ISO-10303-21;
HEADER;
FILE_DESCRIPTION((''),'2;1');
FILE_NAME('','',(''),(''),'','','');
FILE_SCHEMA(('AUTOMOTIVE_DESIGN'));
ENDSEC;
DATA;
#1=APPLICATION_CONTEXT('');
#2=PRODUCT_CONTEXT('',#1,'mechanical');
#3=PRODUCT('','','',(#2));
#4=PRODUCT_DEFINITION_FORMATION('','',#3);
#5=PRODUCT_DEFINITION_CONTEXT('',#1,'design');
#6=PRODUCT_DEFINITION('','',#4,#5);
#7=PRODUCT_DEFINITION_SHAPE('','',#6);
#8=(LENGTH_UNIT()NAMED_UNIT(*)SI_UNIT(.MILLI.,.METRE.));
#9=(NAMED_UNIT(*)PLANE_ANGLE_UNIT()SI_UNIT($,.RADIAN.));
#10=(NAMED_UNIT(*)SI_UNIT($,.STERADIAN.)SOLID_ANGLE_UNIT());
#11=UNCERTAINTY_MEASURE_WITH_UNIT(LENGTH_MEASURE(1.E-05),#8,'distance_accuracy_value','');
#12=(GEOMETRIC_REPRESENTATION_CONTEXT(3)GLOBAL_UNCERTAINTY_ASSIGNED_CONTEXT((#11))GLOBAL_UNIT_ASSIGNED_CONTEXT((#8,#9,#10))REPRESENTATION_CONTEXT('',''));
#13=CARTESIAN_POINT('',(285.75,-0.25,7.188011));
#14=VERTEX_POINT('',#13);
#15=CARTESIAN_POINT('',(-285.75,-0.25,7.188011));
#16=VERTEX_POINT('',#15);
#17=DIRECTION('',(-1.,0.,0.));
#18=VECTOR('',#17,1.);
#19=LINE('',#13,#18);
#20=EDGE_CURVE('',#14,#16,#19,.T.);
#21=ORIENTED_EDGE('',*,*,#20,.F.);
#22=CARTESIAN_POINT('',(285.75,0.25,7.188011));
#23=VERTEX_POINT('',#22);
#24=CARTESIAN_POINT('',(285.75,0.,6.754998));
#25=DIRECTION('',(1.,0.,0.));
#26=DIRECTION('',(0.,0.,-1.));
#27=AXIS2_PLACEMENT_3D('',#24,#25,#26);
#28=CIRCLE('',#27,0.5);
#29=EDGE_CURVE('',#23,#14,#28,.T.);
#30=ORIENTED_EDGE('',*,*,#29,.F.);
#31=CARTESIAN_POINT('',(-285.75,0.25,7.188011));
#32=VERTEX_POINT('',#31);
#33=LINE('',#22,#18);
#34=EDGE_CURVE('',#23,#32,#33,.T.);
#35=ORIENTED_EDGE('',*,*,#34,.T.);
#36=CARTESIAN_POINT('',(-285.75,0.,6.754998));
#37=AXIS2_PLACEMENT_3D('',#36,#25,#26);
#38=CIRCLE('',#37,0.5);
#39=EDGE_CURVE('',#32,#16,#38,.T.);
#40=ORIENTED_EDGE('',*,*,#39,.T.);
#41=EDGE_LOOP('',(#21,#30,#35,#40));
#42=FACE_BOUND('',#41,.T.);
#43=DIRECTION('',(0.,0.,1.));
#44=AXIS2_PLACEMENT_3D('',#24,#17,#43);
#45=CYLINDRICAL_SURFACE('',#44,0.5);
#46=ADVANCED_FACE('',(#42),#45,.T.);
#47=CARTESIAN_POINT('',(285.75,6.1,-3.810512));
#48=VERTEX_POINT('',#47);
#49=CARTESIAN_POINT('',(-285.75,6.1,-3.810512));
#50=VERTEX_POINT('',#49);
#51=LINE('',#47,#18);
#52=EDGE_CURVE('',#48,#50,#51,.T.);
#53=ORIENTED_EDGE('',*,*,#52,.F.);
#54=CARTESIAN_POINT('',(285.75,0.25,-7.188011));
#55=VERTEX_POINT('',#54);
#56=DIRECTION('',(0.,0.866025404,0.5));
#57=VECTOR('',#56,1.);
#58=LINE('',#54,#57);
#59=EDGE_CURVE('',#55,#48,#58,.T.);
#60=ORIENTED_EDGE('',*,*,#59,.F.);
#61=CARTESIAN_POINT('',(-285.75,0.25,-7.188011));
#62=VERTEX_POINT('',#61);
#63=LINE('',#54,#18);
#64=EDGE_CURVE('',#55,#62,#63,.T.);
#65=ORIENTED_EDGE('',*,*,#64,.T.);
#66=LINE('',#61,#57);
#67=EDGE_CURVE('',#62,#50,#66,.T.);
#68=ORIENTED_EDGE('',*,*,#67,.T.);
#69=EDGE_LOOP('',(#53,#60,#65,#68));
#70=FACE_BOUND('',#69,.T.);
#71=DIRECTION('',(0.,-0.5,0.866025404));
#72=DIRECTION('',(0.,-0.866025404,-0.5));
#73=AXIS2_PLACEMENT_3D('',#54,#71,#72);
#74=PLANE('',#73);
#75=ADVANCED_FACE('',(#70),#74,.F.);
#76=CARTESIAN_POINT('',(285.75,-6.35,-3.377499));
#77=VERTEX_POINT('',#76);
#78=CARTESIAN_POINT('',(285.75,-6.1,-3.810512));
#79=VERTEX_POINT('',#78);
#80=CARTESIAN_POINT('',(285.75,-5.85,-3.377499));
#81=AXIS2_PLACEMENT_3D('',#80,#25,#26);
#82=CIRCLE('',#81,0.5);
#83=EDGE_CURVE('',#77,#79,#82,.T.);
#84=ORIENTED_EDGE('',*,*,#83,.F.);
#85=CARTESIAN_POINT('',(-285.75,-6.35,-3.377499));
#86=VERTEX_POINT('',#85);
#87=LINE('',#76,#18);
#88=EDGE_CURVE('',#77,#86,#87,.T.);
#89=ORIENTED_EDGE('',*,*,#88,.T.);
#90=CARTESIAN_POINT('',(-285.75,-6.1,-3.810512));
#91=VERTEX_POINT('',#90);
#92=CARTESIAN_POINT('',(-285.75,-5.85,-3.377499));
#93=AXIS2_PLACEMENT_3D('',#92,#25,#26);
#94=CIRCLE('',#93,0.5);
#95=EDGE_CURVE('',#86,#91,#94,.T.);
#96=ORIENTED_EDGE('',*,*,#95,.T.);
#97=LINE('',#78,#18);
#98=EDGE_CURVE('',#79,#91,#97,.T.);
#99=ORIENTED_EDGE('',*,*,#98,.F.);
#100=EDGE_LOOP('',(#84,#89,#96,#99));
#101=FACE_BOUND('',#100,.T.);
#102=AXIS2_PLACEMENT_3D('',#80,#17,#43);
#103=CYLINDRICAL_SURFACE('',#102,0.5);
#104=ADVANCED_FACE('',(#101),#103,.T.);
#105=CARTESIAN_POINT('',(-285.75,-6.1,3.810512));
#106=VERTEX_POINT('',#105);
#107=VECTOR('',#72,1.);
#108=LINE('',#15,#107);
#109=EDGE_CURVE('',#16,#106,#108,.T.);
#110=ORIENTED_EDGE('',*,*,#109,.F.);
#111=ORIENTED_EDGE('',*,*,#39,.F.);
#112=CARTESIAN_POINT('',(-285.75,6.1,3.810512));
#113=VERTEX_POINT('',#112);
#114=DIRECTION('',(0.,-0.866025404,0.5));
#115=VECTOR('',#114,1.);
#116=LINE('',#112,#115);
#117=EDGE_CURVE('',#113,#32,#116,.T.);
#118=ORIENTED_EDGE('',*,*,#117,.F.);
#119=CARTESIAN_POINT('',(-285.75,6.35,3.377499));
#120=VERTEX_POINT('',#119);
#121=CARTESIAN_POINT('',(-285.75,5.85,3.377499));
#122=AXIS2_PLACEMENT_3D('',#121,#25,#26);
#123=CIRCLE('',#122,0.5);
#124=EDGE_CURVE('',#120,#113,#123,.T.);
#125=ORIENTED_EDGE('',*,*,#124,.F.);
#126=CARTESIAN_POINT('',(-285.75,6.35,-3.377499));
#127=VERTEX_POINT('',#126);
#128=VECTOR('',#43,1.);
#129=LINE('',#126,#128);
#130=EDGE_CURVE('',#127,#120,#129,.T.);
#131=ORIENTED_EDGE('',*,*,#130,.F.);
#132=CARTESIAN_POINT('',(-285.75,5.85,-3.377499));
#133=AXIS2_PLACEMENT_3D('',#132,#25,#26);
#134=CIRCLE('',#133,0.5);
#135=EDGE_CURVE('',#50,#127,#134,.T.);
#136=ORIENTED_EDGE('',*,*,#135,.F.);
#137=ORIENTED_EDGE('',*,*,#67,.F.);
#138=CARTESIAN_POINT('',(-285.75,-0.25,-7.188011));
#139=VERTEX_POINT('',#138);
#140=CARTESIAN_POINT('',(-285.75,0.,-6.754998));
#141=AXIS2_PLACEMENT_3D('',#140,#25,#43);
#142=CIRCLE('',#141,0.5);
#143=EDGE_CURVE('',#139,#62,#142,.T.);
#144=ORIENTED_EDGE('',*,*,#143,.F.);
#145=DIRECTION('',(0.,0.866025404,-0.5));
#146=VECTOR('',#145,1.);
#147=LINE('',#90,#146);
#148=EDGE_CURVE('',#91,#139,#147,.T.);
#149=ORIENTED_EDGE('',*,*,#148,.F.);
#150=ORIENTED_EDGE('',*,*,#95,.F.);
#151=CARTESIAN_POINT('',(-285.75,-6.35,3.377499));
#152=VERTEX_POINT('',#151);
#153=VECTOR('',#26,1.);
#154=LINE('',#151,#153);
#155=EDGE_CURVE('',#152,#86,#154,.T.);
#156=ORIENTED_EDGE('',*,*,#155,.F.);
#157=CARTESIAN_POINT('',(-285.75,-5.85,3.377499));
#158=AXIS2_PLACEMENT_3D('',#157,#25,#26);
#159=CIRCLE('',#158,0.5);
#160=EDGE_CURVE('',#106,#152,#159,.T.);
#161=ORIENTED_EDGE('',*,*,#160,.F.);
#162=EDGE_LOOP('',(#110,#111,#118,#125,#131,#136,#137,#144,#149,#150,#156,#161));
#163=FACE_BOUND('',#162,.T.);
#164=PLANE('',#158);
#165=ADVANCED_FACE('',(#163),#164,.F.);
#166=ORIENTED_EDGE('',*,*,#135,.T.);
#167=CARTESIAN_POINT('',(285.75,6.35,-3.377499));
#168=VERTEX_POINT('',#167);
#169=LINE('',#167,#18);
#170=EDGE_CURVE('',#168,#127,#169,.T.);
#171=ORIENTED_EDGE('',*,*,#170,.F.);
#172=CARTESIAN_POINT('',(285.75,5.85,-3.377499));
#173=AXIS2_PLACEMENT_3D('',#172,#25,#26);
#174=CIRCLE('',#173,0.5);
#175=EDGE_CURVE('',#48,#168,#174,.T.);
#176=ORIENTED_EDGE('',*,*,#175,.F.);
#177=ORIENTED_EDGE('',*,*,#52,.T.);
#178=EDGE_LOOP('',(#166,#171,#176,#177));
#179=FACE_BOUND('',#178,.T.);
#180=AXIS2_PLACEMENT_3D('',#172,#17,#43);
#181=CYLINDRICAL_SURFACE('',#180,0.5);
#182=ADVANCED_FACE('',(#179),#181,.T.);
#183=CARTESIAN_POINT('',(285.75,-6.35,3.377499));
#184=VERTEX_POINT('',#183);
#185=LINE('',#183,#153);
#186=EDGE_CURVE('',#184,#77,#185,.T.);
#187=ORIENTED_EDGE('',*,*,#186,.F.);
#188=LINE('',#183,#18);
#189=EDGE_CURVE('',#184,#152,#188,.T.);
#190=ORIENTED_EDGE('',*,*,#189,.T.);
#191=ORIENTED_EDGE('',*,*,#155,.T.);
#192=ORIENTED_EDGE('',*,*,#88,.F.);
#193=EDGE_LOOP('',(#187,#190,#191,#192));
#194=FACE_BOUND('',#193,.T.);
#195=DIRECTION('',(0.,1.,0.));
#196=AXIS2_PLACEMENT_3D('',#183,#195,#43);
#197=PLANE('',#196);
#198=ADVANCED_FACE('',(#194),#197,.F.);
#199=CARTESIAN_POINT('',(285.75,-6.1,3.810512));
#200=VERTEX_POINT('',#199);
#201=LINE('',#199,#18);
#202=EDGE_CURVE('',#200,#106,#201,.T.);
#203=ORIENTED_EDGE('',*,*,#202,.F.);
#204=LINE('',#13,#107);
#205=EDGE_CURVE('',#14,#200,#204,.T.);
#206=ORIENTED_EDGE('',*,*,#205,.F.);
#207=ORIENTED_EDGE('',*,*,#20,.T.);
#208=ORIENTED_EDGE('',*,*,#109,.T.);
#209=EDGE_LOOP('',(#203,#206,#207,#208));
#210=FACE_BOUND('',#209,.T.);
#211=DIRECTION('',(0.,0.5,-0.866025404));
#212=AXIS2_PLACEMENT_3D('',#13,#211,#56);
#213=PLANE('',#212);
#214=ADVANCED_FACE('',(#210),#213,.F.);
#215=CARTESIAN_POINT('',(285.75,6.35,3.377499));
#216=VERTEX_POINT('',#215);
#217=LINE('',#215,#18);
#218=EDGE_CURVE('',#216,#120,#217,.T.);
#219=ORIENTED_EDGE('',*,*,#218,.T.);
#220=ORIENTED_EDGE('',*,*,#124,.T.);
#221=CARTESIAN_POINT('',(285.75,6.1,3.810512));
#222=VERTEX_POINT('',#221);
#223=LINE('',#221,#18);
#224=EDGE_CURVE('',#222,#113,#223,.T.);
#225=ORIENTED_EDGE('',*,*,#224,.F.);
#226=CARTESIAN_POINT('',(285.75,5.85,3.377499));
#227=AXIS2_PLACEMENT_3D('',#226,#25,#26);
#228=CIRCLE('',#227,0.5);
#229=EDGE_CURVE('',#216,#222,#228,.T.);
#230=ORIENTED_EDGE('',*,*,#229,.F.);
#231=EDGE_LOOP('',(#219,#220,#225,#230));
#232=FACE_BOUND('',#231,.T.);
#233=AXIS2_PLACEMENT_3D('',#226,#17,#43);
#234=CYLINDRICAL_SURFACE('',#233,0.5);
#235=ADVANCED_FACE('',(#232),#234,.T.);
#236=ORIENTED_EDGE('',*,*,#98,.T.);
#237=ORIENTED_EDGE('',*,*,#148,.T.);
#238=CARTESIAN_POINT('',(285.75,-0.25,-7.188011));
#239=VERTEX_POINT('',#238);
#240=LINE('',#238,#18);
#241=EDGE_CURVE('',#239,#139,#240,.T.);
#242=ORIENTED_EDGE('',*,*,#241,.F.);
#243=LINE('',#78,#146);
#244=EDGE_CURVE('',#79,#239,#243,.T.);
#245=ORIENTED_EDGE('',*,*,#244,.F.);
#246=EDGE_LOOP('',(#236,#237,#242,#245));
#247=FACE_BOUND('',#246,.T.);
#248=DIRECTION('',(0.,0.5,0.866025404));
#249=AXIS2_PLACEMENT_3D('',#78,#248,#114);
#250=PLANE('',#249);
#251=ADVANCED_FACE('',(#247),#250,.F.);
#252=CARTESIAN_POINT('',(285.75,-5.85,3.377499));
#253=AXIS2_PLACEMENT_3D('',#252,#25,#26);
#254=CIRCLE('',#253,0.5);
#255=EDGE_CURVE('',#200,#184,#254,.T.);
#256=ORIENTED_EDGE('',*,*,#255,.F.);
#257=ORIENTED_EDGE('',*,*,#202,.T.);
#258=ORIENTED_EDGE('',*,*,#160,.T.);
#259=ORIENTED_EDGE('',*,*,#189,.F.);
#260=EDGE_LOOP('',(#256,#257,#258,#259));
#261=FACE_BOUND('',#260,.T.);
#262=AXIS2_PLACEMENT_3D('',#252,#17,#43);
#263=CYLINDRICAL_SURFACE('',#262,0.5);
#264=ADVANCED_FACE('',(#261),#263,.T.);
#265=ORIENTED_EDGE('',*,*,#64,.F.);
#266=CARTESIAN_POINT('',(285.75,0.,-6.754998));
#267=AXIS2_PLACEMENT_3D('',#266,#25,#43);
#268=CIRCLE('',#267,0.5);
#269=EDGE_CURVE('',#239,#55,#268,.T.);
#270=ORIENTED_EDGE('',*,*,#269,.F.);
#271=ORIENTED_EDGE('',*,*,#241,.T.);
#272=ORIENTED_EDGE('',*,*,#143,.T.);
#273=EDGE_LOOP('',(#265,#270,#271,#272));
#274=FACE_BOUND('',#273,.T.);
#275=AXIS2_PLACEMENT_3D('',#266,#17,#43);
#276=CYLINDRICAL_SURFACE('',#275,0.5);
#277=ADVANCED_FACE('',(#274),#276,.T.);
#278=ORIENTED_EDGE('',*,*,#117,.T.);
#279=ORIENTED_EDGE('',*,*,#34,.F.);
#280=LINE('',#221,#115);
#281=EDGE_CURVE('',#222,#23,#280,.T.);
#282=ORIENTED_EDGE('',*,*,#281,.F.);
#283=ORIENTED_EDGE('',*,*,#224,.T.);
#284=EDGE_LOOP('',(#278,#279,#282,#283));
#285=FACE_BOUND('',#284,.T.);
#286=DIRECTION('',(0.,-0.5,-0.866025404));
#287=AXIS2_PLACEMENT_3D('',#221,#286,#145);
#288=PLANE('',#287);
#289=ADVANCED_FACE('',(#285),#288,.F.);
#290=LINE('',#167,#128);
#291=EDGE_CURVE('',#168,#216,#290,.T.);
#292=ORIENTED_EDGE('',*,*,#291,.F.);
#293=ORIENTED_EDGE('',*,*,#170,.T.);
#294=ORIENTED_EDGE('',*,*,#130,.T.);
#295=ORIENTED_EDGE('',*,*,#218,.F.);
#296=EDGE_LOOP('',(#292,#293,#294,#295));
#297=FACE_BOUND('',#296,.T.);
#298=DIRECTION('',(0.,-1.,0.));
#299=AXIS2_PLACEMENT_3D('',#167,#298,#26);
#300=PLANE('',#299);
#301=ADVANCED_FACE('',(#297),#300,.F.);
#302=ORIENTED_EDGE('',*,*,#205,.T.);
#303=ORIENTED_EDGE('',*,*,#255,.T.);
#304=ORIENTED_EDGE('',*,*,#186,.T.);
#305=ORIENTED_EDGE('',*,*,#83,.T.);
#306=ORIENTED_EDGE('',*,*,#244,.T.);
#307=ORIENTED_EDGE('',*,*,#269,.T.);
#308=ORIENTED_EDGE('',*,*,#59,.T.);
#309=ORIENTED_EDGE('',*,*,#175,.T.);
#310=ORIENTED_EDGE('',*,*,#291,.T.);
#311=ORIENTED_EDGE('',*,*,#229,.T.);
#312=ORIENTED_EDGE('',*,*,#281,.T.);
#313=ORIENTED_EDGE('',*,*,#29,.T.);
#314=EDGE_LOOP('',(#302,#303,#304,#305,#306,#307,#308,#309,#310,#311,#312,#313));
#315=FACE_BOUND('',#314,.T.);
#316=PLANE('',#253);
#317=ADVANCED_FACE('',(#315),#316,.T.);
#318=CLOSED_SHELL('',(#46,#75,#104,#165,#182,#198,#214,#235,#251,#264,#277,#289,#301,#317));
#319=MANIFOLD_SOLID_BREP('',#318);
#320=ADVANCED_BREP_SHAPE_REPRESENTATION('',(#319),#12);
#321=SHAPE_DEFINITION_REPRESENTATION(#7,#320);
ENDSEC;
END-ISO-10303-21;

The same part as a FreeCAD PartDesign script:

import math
import FreeCAD as App
import Part
import Sketcher
Q = App.Units.Quantity

doc = App.newDocument("Part")
params = doc.addObject("Spreadsheet::Sheet", "Params")
for row, (alias, value) in enumerate([
    ("sketch1_radius", "0.5 mm"),
    ("pad1_length", "571.5 mm"),
], start=1):
    params.set(f"A{row}", alias)
    params.set(f"B{row}", "=" + value)
    params.setAlias(f"B{row}", alias)

body = doc.addObject("PartDesign::Body", "Body")

sketch1 = body.newObject("Sketcher::SketchObject", "Sketch")
sketch1.AttachmentSupport = (doc.getObject("YZ_Plane"), [""])
sketch1.MapMode = "FlatFace"
sketch1.addGeometry([
    Part.LineSegment(App.Vector(0.25, -7.19, 0), App.Vector(6.1, -3.81, 0)),
    Part.ArcOfCircle(Part.Circle(App.Vector(5.85, -3.38, 0), App.Vector(0, 0, 1), 0.5), math.radians(-60), math.radians(0)),
    Part.LineSegment(App.Vector(6.35, -3.38, 0), App.Vector(6.35, 3.38, 0)),
    Part.ArcOfCircle(Part.Circle(App.Vector(5.85, 3.38, 0), App.Vector(0, 0, 1), 0.5), math.radians(0), math.radians(60)),
    Part.LineSegment(App.Vector(6.1, 3.81, 0), App.Vector(0.25, 7.19, 0)),
    Part.ArcOfCircle(Part.Circle(App.Vector(0, 6.75, 0), App.Vector(0, 0, 1), 0.5), math.radians(60), math.radians(120)),
    Part.LineSegment(App.Vector(-0.25, 7.19, 0), App.Vector(-6.1, 3.81, 0)),
    Part.ArcOfCircle(Part.Circle(App.Vector(-5.85, 3.38, 0), App.Vector(0, 0, 1), 0.5), math.radians(120), math.radians(180)),
    Part.LineSegment(App.Vector(-6.35, 3.38, 0), App.Vector(-6.35, -3.38, 0)),
    Part.ArcOfCircle(Part.Circle(App.Vector(-5.85, -3.38, 0), App.Vector(0, 0, 1), 0.5), math.radians(180), math.radians(240)),
    Part.LineSegment(App.Vector(-6.1, -3.81, 0), App.Vector(-0.25, -7.19, 0)),
    Part.ArcOfCircle(Part.Circle(App.Vector(0, -6.75, 0), App.Vector(0, 0, 1), 0.5), math.radians(-120), math.radians(-60)),
], False)
sketch1.addConstraint([
    Sketcher.Constraint("Tangent", 0, 2, 1, 1),
    Sketcher.Constraint("Tangent", 1, 2, 2, 1),
    Sketcher.Constraint("Tangent", 2, 2, 3, 1),
    Sketcher.Constraint("Tangent", 3, 2, 4, 1),
    Sketcher.Constraint("Tangent", 4, 2, 5, 1),
    Sketcher.Constraint("Tangent", 5, 2, 6, 1),
    Sketcher.Constraint("Tangent", 6, 2, 7, 1),
    Sketcher.Constraint("Tangent", 7, 2, 8, 1),
    Sketcher.Constraint("Tangent", 8, 2, 9, 1),
    Sketcher.Constraint("Tangent", 9, 2, 10, 1),
    Sketcher.Constraint("Tangent", 10, 2, 11, 1),
    Sketcher.Constraint("Tangent", 11, 2, 0, 1),
    Sketcher.Constraint("Vertical", 2),
    Sketcher.Constraint("Vertical", 8),
    Sketcher.Constraint("Equal", 1, 3),
    Sketcher.Constraint("Equal", 3, 5),
    Sketcher.Constraint("Equal", 5, 7),
    Sketcher.Constraint("Equal", 7, 9),
    Sketcher.Constraint("Equal", 9, 11),
    Sketcher.Constraint("Symmetric", 1, 3, 7, 3, -1, 1),
    Sketcher.Constraint("Symmetric", 5, 3, 11, 3, -1, 1),
    Sketcher.Constraint("Symmetric", 4, 2, 5, 2, -2),
    Sketcher.Constraint("Parallel", 4, 10),
    Sketcher.Constraint("Radius", 1, 0.5),
    Sketcher.Constraint("Angle", 0, Q("30 deg")),
    Sketcher.Constraint("DistanceX", -1, 1, 0, 2, 6.1),
    Sketcher.Constraint("DistanceY", 2, 1, 2, 2, 6.754998),
])
sketch1.setExpression("Constraints[23]", "Params.sketch1_radius")
pad1 = body.newObject("PartDesign::Pad", "Pad")
pad1.Profile = sketch1
pad1.setExpression("Length", "Params.pad1_length")
pad1.Midplane = True

doc.recompute()
